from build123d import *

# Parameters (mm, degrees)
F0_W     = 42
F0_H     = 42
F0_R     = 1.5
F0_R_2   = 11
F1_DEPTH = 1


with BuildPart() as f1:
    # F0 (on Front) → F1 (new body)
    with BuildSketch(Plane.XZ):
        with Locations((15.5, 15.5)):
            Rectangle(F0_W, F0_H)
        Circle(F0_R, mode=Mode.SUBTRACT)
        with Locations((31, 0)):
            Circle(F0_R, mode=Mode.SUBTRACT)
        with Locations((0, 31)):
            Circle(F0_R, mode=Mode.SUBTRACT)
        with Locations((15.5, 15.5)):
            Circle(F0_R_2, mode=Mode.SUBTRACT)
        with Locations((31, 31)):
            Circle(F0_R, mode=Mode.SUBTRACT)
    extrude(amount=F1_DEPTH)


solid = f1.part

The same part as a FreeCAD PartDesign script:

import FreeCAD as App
import Part
import Sketcher

doc = App.newDocument("Part")
body = doc.addObject("PartDesign::Body", "Body")

sketch1 = body.newObject("Sketcher::SketchObject", "Sketch")
sketch1.AttachmentSupport = (doc.getObject("XZ_Plane"), [""])
sketch1.MapMode = "FlatFace"
sketch1.addGeometry(Part.LineSegment(App.Vector(-5.5, 36.5, 0), App.Vector(-5.5, -5.5, 0)), False)
sketch1.addGeometry(Part.LineSegment(App.Vector(-5.5, -5.5, 0), App.Vector(36.5, -5.5, 0)), False)
sketch1.addGeometry(Part.LineSegment(App.Vector(36.5, -5.5, 0), App.Vector(36.5, 36.5, 0)), False)
sketch1.addGeometry(Part.LineSegment(App.Vector(36.5, 36.5, 0), App.Vector(-5.5, 36.5, 0)), False)
sketch1.addGeometry(Part.Circle(App.Vector(0, 0, 0), App.Vector(0, 0, 1), 1.5), False)
sketch1.addGeometry(Part.Circle(App.Vector(31, 0, 0), App.Vector(0, 0, 1), 1.5), False)
sketch1.addGeometry(Part.Circle(App.Vector(0, 31, 0), App.Vector(0, 0, 1), 1.5), False)
sketch1.addGeometry(Part.Circle(App.Vector(15.5, 15.5, 0), App.Vector(0, 0, 1), 11), False)
sketch1.addGeometry(Part.Circle(App.Vector(31, 31, 0), App.Vector(0, 0, 1), 1.5), False)
sketch1.addConstraint(Sketcher.Constraint("Coincident", 0, 2, 1, 1))
sketch1.addConstraint(Sketcher.Constraint("Coincident", 1, 2, 2, 1))
sketch1.addConstraint(Sketcher.Constraint("Coincident", 2, 2, 3, 1))
sketch1.addConstraint(Sketcher.Constraint("Coincident", 3, 2, 0, 1))
sketch1.addConstraint(Sketcher.Constraint("Vertical", 0))
sketch1.addConstraint(Sketcher.Constraint("Horizontal", 1))
sketch1.addConstraint(Sketcher.Constraint("Vertical", 2))
sketch1.addConstraint(Sketcher.Constraint("Horizontal", 3))
sketch1.addConstraint(Sketcher.Constraint("Coincident", 4, 3, -1, 1))
sketch1.addConstraint(Sketcher.Constraint("Equal", 4, 5))
sketch1.addConstraint(Sketcher.Constraint("Equal", 5, 6))
sketch1.addConstraint(Sketcher.Constraint("Equal", 6, 8))
sketch1.addConstraint(Sketcher.Constraint("PointOnObject", 5, 3, -1))
sketch1.addConstraint(Sketcher.Constraint("PointOnObject", 6, 3, -2))
sketch1.addConstraint(Sketcher.Constraint("Horizontal", 6, 3, 8, 3))
sketch1.addConstraint(Sketcher.Constraint("Vertical", 5, 3, 8, 3))
sketch1.addConstraint(Sketcher.Constraint("Equal", 3, 0))
sketch1.addConstraint(Sketcher.Constraint("Diameter", 4, 3.0))
sketch1.addConstraint(Sketcher.Constraint("Diameter", 7, 22.0))
sketch1.addConstraint(Sketcher.Constraint("DistanceX", 1, 1, 1, 2, 42.0))
sketch1.addConstraint(Sketcher.Constraint("DistanceX", -1, 1, 5, 3, 31.0))
sketch1.addConstraint(Sketcher.Constraint("DistanceY", -1, 1, 6, 3, 31.0))
sketch1.addConstraint(Sketcher.Constraint("DistanceX", 0, 2, 7, 3, 21.0))
sketch1.addConstraint(Sketcher.Constraint("DistanceY", 0, 2, 7, 3, 21.0))
sketch1.addConstraint(Sketcher.Constraint("DistanceX", -1, 1, 7, 3, 15.5))
sketch1.addConstraint(Sketcher.Constraint("DistanceY", -1, 1, 7, 3, 15.5))
pad1 = body.newObject("PartDesign::Pad", "Pad")
pad1.Profile = sketch1
pad1.Length = 1

doc.recompute()
